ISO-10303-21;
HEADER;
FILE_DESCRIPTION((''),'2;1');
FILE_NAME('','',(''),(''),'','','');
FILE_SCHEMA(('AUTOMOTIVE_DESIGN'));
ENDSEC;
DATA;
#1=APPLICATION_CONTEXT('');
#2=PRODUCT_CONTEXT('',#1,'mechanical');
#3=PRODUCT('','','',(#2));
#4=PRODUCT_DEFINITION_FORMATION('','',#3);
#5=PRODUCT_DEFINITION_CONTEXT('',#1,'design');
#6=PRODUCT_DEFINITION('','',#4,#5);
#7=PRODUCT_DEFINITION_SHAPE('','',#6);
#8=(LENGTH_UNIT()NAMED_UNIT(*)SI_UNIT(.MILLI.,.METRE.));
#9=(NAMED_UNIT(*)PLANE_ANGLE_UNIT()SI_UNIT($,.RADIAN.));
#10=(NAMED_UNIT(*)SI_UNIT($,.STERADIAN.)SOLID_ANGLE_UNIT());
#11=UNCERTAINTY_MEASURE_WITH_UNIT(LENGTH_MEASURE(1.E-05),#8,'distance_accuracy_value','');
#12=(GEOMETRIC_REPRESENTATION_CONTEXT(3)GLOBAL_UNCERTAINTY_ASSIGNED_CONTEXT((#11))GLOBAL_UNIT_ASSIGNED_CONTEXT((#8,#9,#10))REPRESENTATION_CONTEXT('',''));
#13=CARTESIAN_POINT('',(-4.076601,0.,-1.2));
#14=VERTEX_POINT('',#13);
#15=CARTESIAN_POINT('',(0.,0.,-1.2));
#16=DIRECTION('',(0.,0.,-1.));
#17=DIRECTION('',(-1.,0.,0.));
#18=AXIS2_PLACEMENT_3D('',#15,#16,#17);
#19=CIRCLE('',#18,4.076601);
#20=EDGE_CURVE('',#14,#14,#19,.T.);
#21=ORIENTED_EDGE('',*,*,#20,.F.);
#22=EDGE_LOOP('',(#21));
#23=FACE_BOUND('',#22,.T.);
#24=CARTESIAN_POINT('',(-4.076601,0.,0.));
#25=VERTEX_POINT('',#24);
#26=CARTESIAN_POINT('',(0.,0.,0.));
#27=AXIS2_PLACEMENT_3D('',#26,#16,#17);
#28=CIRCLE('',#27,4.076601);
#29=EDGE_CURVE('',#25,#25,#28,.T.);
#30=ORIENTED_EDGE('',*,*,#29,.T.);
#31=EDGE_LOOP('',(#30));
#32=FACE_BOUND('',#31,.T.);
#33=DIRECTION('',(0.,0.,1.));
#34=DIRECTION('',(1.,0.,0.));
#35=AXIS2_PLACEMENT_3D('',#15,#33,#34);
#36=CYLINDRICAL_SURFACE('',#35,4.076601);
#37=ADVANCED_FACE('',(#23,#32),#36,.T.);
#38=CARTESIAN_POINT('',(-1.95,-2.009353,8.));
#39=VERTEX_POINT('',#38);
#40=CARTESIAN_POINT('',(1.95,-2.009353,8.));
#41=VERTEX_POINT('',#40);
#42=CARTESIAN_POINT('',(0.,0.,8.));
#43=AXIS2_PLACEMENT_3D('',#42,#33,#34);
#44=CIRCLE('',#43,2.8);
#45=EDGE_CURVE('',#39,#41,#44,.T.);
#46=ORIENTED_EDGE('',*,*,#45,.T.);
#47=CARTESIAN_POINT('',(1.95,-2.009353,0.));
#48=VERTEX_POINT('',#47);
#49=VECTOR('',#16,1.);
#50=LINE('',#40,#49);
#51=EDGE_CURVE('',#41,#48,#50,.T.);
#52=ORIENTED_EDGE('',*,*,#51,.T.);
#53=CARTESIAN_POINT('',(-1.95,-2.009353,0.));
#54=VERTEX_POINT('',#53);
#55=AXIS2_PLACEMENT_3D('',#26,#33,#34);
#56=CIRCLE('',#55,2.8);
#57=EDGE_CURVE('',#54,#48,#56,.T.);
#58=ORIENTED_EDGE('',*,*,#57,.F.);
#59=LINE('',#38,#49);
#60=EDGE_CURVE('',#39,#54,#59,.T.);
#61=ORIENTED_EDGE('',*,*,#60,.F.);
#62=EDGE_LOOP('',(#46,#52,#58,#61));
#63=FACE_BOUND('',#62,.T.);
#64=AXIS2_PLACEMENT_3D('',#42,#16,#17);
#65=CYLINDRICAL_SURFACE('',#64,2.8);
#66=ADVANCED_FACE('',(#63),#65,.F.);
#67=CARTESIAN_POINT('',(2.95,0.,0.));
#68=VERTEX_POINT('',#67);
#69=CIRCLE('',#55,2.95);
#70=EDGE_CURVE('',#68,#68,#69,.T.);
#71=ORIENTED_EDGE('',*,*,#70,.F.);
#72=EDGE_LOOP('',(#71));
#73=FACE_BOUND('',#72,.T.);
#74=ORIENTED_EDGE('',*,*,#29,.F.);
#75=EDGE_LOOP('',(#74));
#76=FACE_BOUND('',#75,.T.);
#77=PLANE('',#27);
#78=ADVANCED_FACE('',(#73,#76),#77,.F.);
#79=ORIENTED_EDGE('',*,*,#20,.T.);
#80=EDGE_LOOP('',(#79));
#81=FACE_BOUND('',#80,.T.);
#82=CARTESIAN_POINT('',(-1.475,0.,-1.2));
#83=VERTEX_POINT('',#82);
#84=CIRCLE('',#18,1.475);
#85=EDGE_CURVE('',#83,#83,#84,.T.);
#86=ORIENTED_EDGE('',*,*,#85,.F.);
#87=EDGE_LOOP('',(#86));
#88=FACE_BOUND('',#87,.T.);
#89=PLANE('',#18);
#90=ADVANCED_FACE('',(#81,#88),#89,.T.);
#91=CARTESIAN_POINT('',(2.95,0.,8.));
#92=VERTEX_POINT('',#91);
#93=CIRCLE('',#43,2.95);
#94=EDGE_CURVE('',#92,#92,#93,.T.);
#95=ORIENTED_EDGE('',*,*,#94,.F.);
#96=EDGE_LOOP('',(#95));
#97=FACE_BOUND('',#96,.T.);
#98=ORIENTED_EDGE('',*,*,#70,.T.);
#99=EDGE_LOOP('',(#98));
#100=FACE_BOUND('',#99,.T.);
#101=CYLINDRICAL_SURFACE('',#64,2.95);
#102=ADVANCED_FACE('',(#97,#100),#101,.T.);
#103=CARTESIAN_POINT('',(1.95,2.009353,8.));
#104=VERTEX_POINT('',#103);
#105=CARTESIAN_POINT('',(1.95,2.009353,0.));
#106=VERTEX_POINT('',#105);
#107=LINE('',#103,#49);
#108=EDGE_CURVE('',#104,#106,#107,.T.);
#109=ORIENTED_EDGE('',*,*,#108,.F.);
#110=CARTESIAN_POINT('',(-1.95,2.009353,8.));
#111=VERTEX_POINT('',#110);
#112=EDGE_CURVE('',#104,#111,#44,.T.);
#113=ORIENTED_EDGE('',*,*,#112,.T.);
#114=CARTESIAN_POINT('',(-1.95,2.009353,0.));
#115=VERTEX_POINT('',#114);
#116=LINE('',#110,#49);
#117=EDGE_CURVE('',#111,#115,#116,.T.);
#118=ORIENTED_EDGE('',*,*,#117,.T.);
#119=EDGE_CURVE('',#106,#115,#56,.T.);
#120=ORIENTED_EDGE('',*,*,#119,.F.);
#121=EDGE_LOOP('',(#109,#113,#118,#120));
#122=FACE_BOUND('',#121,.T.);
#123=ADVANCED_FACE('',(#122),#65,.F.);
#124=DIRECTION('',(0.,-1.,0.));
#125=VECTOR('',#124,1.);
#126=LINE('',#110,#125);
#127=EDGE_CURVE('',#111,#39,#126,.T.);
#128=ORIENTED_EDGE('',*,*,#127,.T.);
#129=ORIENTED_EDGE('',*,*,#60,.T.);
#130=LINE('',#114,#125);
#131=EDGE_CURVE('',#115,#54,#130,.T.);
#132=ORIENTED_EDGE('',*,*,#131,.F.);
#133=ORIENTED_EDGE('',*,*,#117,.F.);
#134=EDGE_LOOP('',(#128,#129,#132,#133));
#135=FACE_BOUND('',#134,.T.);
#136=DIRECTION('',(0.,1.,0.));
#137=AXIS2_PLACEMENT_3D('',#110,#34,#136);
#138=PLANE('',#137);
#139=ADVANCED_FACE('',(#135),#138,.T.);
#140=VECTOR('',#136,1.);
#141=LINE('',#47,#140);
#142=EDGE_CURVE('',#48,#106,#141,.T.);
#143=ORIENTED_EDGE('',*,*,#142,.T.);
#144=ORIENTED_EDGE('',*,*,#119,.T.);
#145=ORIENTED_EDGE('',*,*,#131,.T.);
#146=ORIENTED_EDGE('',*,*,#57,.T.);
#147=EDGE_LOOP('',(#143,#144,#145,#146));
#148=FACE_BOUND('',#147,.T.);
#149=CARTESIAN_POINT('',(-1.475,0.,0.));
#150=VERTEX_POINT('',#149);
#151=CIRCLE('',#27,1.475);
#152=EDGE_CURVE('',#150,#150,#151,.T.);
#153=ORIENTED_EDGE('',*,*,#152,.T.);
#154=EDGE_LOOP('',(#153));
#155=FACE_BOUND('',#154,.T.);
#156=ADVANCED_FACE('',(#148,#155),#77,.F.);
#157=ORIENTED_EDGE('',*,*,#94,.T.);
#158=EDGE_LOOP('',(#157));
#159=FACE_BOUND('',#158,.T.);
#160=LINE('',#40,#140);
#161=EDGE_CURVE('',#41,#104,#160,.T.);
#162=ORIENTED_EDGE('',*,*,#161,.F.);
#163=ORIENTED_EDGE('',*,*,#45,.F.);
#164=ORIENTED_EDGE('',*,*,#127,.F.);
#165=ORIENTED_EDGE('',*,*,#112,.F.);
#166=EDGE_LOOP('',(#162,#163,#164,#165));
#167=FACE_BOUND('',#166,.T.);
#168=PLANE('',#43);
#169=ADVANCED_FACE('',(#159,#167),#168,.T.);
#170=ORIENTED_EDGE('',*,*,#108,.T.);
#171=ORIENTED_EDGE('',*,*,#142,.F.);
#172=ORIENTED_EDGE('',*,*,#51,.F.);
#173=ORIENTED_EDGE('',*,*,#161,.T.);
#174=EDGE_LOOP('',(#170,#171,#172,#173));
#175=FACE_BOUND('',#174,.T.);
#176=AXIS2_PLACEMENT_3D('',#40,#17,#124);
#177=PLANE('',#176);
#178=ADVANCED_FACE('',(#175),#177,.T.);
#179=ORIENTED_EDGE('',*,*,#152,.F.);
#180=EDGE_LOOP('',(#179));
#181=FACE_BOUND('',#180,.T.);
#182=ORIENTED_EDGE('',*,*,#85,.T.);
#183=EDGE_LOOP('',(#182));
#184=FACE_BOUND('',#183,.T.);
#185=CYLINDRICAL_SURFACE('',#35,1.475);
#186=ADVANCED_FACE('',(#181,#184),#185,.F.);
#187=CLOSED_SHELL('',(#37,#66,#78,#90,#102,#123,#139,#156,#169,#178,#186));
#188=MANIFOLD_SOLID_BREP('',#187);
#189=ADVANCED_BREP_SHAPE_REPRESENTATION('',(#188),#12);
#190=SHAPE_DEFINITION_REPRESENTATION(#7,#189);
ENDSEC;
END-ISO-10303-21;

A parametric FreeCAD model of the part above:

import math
import FreeCAD as App
import Part
import Sketcher
from FreeCAD import Vector
Q = App.Units.Quantity

doc = App.newDocument("Part")
body = doc.addObject("PartDesign::Body", "Body")

# Sketch on XY plane
sketch1 = doc.addObject("Sketcher::SketchObject", "Sketch")
body.addObject(sketch1)
sketch1.AttachmentSupport = (doc.XY_Plane, [""])
sketch1.MapMode = "FlatFace"
sketch1.addGeometry([
    Part.Circle(Vector(0, 0, 0), Vector(0, 0, 1), 2.95),  # 0
    Part.LineSegment(Vector(1.95, 2.009353, 0), Vector(1.95, -2.009353, 0)),  # 1
    Part.ArcOfCircle(Part.Circle(Vector(0, 0, 0), Vector(0, 0, 1), 2.8), math.radians(-134.141165), math.radians(-45.858835)),  # 2
    Part.LineSegment(Vector(-1.95, -2.009353, 0), Vector(-1.95, 2.009353, 0)),  # 3
    Part.ArcOfCircle(Part.Circle(Vector(0, 0, 0), Vector(0, 0, 1), 2.8), math.radians(45.858835), math.radians(134.141165)),  # 4
], False)
sketch1.addConstraint([
    Sketcher.Constraint("Coincident", 1, 2, 2, 2),
    Sketcher.Constraint("Coincident", 2, 1, 3, 1),
    Sketcher.Constraint("Coincident", 3, 2, 4, 2),
    Sketcher.Constraint("Coincident", 4, 1, 1, 1),
    Sketcher.Constraint("Vertical", 1),
    Sketcher.Constraint("Vertical", 3),
    Sketcher.Constraint("Coincident", 0, 3, -1, 1),
    Sketcher.Constraint("Coincident", 2, 3, -1, 1),
    Sketcher.Constraint("Coincident", 4, 3, -1, 1),
    Sketcher.Constraint("Equal", 2, 4),
    Sketcher.Constraint("Horizontal", 1, 2, 2, 1),
    Sketcher.Constraint("Diameter", 0, Q("5.9 mm")),
    Sketcher.Constraint("Radius", 2, Q("2.8 mm")),
    Sketcher.Constraint("DistanceX", 2, 1, 1, 2, Q("3.9 mm")),
])
pad1 = doc.addObject("PartDesign::Pad", "Pad")
body.addObject(pad1)
pad1.Profile = sketch1
pad1.Length = 8

# Sketch on XY plane
sketch2 = doc.addObject("Sketcher::SketchObject", "Sketch001")
body.addObject(sketch2)
sketch2.AttachmentSupport = (doc.XY_Plane, [""])
sketch2.MapMode = "FlatFace"
sketch2.addGeometry([
    Part.Circle(Vector(0, 0, 0), Vector(0, 0, 1), 4.076601),
    Part.Circle(Vector(0, 0, 0), Vector(0, 0, 1), 1.475),
], False)
sketch2.addConstraint([
    Sketcher.Constraint("Coincident", 0, 3, -1, 1),
    Sketcher.Constraint("Coincident", 1, 3, -1, 1),
    Sketcher.Constraint("Diameter", 1, Q("2.95 mm")),
    Sketcher.Constraint("Diameter", 0, Q("8.153203 mm")),
])
pad2 = doc.addObject("PartDesign::Pad", "Pad001")
body.addObject(pad2)
pad2.Profile = sketch2
pad2.Length = 1.2
pad2.Reversed = True

doc.recompute()
